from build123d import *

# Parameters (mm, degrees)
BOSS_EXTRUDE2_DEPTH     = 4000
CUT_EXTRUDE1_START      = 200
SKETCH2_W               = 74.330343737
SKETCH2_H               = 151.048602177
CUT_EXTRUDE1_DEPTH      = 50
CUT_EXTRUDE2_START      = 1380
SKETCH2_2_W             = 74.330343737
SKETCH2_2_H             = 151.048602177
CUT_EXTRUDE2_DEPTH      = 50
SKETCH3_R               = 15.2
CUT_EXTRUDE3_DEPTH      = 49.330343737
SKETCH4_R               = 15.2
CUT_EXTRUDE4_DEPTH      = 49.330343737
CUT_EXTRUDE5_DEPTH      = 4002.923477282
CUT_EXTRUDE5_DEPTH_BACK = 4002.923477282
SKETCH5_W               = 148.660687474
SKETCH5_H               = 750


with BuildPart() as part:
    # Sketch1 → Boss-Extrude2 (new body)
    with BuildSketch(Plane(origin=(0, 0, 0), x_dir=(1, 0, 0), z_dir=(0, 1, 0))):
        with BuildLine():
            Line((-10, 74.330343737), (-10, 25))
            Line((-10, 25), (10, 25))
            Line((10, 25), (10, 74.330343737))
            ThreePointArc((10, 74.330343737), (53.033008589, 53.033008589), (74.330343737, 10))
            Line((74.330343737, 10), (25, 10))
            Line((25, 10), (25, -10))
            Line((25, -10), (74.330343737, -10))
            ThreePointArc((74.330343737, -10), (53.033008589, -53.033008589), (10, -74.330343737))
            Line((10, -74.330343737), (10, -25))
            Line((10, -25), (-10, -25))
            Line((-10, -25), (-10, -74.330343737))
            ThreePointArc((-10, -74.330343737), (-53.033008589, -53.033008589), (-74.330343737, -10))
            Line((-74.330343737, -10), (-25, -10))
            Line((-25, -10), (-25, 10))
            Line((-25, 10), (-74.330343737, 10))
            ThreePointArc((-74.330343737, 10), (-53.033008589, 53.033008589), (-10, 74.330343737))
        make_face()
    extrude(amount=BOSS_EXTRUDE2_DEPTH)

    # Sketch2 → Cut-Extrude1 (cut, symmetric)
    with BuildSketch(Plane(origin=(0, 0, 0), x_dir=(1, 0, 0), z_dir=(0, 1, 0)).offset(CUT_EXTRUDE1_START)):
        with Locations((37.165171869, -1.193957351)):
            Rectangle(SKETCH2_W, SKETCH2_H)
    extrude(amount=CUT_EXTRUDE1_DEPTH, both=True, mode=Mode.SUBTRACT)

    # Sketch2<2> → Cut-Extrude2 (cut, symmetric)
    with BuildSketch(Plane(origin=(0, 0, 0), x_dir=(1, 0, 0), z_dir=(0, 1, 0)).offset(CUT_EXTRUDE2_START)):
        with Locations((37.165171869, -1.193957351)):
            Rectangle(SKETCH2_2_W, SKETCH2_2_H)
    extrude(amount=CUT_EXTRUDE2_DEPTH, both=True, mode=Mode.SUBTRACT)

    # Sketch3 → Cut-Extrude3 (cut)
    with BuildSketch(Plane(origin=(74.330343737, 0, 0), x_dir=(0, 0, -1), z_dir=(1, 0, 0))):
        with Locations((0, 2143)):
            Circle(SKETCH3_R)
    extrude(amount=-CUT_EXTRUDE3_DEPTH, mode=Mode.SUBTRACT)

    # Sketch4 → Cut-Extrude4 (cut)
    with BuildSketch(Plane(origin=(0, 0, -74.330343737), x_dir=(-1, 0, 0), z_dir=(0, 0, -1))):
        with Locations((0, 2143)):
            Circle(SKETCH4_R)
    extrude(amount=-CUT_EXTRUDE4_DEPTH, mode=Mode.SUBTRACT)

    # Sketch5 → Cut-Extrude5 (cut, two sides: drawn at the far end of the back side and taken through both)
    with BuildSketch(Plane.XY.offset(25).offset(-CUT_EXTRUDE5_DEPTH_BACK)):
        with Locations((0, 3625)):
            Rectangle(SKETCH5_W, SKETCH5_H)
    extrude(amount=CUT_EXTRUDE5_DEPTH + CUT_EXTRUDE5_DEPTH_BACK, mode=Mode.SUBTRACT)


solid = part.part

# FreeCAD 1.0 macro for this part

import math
import FreeCAD as App
import Part
import Sketcher

V = App.Vector
Q = App.Units.Quantity

doc = App.newDocument("Part")
body = doc.addObject("PartDesign::Body", "Body")

sketch1 = body.newObject("Sketcher::SketchObject", "Sketch")
sketch1.AttachmentSupport = (doc.getObject("XZ_Plane"), [""])
sketch1.MapMode = "FlatFace"
sketch1.addGeometry([
    Part.LineSegment(V(-10, -25, 0), V(-10, -74, 0)),
    Part.ArcOfCircle(Part.Circle(V(0, 0, 0), V(0, 0, 1), 75), math.radians(-172), math.radians(-98)),
    Part.LineSegment(V(-74, -10, 0), V(-25, -10, 0)),
    Part.LineSegment(V(-25, -10, 0), V(-25, 10, 0)),
    Part.LineSegment(V(-25, 10, 0), V(-74, 10, 0)),
    Part.ArcOfCircle(Part.Circle(V(0, 0, 0), V(0, 0, 1), 75), math.radians(98), math.radians(172)),
    Part.LineSegment(V(-10, 74, 0), V(-10, 25, 0)),
    Part.LineSegment(V(-10, 25, 0), V(10, 25, 0)),
    Part.LineSegment(V(10, 25, 0), V(10, 74, 0)),
    Part.ArcOfCircle(Part.Circle(V(0, 0, 0), V(0, 0, 1), 75), math.radians(8), math.radians(82)),
    Part.LineSegment(V(74, 10, 0), V(25, 10, 0)),
    Part.LineSegment(V(25, 10, 0), V(25, -10, 0)),
    Part.LineSegment(V(25, -10, 0), V(74, -10, 0)),
    Part.ArcOfCircle(Part.Circle(V(0, 0, 0), V(0, 0, 1), 75), math.radians(-82), math.radians(-8)),
    Part.LineSegment(V(10, -74, 0), V(10, -25, 0)),
    Part.LineSegment(V(10, -25, 0), V(-10, -25, 0)),
], False)
sketch1.addConstraint([
    Sketcher.Constraint("Coincident", 0, 2, 1, 2),
    Sketcher.Constraint("Coincident", 1, 1, 2, 1),
    Sketcher.Constraint("Coincident", 2, 2, 3, 1),
    Sketcher.Constraint("Coincident", 3, 2, 4, 1),
    Sketcher.Constraint("Coincident", 4, 2, 5, 2),
    Sketcher.Constraint("Coincident", 5, 1, 6, 1),
    Sketcher.Constraint("Coincident", 6, 2, 7, 1),
    Sketcher.Constraint("Coincident", 7, 2, 8, 1),
    Sketcher.Constraint("Coincident", 8, 2, 9, 2),
    Sketcher.Constraint("Coincident", 9, 1, 10, 1),
    Sketcher.Constraint("Coincident", 10, 2, 11, 1),
    Sketcher.Constraint("Coincident", 11, 2, 12, 1),
    Sketcher.Constraint("Coincident", 12, 2, 13, 2),
    Sketcher.Constraint("Coincident", 13, 1, 14, 1),
    Sketcher.Constraint("Coincident", 14, 2, 15, 1),
    Sketcher.Constraint("Coincident", 15, 2, 0, 1),
    Sketcher.Constraint("Vertical", 0),
    Sketcher.Constraint("Horizontal", 2),
    Sketcher.Constraint("Vertical", 3),
    Sketcher.Constraint("Horizontal", 4),
    Sketcher.Constraint("Vertical", 6),
    Sketcher.Constraint("Horizontal", 7),
    Sketcher.Constraint("Vertical", 8),
    Sketcher.Constraint("Horizontal", 10),
    Sketcher.Constraint("Vertical", 11),
    Sketcher.Constraint("Horizontal", 12),
    Sketcher.Constraint("Vertical", 14),
    Sketcher.Constraint("Horizontal", 15),
    Sketcher.Constraint("Coincident", 1, 3, -1, 1),
    Sketcher.Constraint("Coincident", 5, 3, -1, 1),
    Sketcher.Constraint("Coincident", 9, 3, -1, 1),
    Sketcher.Constraint("Coincident", 13, 3, -1, 1),
    Sketcher.Constraint("Equal", 1, 5),
    Sketcher.Constraint("Equal", 5, 9),
    Sketcher.Constraint("Equal", 9, 13),
    Sketcher.Constraint("Symmetric", 2, 2, 10, 2, -1, 1),
    Sketcher.Constraint("Symmetric", 6, 2, 14, 2, -1, 1),
    Sketcher.Constraint("Horizontal", 5, 1, 8, 2),
    Sketcher.Constraint("Horizontal", 4, 2, 9, 1),
    Sketcher.Constraint("Horizontal", 2, 2, 11, 2),
    Sketcher.Constraint("Horizontal", 0, 2, 13, 1),
    Sketcher.Constraint("Equal", 12, 0),
    Sketcher.Constraint("Equal", 15, 3),
    Sketcher.Constraint("Radius", 1, Q("75 mm")),
    Sketcher.Constraint("DistanceX", 7, 1, 7, 2, Q("20 mm")),
    Sketcher.Constraint("DistanceX", 2, 2, -1, 1, Q("25 mm")),
])
pad1 = body.newObject("PartDesign::Pad", "Pad")
pad1.Profile = sketch1
pad1.Length = 4000
pad1.Reversed = True

sketch2 = body.newObject("Sketcher::SketchObject", "Sketch001")
sketch2.AttachmentSupport = (doc.getObject("XZ_Plane"), [""])
sketch2.MapMode = "FlatFace"
sketch2.AttachmentOffset = App.Placement(V(0, 0, -200), App.Rotation())
sketch2.addGeometry([
    Part.LineSegment(V(0, -74, 0), V(0, 77, 0)),
    Part.LineSegment(V(0, 77, 0), V(74, 77, 0)),
    Part.LineSegment(V(74, 77, 0), V(74, -74, 0)),
    Part.LineSegment(V(74, -74, 0), V(0, -74, 0)),
], False)
sketch2.addConstraint([
    Sketcher.Constraint("Coincident", 0, 2, 1, 1),
    Sketcher.Constraint("Coincident", 1, 2, 2, 1),
    Sketcher.Constraint("Coincident", 2, 2, 3, 1),
    Sketcher.Constraint("Coincident", 3, 2, 0, 1),
    Sketcher.Constraint("Vertical", 0),
    Sketcher.Constraint("Horizontal", 1),
    Sketcher.Constraint("Vertical", 2),
    Sketcher.Constraint("Horizontal", 3),
    Sketcher.Constraint("PointOnObject", 0, 2, -2),
    Sketcher.Constraint("DistanceX", 1, 1, 1, 2, Q("74.330344 mm")),
    Sketcher.Constraint("DistanceY", 0, 1, 0, 2, Q("151.048602 mm")),
    Sketcher.Constraint("DistanceY", -1, 1, 0, 2, Q("76.718258 mm")),
])
pocket1 = body.newObject("PartDesign::Pocket", "Pocket")
pocket1.Profile = sketch2
pocket1.Length = 100
pocket1.Midplane = True

sketch3 = body.newObject("Sketcher::SketchObject", "Sketch002")
sketch3.AttachmentSupport = (doc.getObject("XZ_Plane"), [""])
sketch3.MapMode = "FlatFace"
sketch3.AttachmentOffset = App.Placement(V(0, 0, -1380), App.Rotation())
sketch3.addGeometry([
    Part.LineSegment(V(0, -74, 0), V(0, 77, 0)),
    Part.LineSegment(V(0, 77, 0), V(74, 77, 0)),
    Part.LineSegment(V(74, 77, 0), V(74, -74, 0)),
    Part.LineSegment(V(74, -74, 0), V(0, -74, 0)),
], False)
sketch3.addConstraint([
    Sketcher.Constraint("Coincident", 0, 2, 1, 1),
    Sketcher.Constraint("Coincident", 1, 2, 2, 1),
    Sketcher.Constraint("Coincident", 2, 2, 3, 1),
    Sketcher.Constraint("Coincident", 3, 2, 0, 1),
    Sketcher.Constraint("Vertical", 0),
    Sketcher.Constraint("Horizontal", 1),
    Sketcher.Constraint("Vertical", 2),
    Sketcher.Constraint("Horizontal", 3),
    Sketcher.Constraint("PointOnObject", 0, 2, -2),
    Sketcher.Constraint("DistanceX", 1, 1, 1, 2, Q("74.330344 mm")),
    Sketcher.Constraint("DistanceY", 0, 1, 0, 2, Q("151.048602 mm")),
    Sketcher.Constraint("DistanceY", -1, 1, 0, 2, Q("76.718258 mm")),
])
pocket2 = body.newObject("PartDesign::Pocket", "Pocket001")
pocket2.Profile = sketch3
pocket2.Length = 100
pocket2.Midplane = True

sketch4 = body.newObject("Sketcher::SketchObject", "Sketch003")
sketch4.AttachmentSupport = (doc.getObject("YZ_Plane"), [""])
sketch4.MapMode = "FlatFace"
sketch4.AttachmentOffset = App.Placement(V(0, 0, 74.330344), App.Rotation())
sketch4.addGeometry(Part.Circle(V(2143, 0, 0), V(0, 0, 1), 15), False)
sketch4.addConstraint([
    Sketcher.Constraint("PointOnObject", 0, 3, -1),
    Sketcher.Constraint("Diameter", 0, Q("30.4 mm")),
    Sketcher.Constraint("DistanceX", -1, 1, 0, 3, Q("2143 mm")),
])
pocket3 = body.newObject("PartDesign::Pocket", "Pocket002")
pocket3.Profile = sketch4
pocket3.Length = 49.330344

sketch5 = body.newObject("Sketcher::SketchObject", "Sketch004")
sketch5.AttachmentSupport = (doc.getObject("XY_Plane"), [""])
sketch5.MapMode = "FlatFace"
sketch5.AttachmentOffset = App.Placement(V(0, 0, -74.330344), App.Rotation())
sketch5.addGeometry(Part.Circle(V(0, 2143, 0), V(0, 0, 1), 15), False)
sketch5.addConstraint([
    Sketcher.Constraint("PointOnObject", 0, 3, -2),
    Sketcher.Constraint("Diameter", 0, Q("30.4 mm")),
    Sketcher.Constraint("DistanceY", -1, 1, 0, 3, Q("2143 mm")),
])
pocket4 = body.newObject("PartDesign::Pocket", "Pocket003")
pocket4.Profile = sketch5
pocket4.Length = 49.330344
pocket4.Reversed = True

sketch6 = body.newObject("Sketcher::SketchObject", "Sketch005")
sketch6.AttachmentSupport = (doc.getObject("XY_Plane"), [""])
sketch6.MapMode = "FlatFace"
sketch6.AttachmentOffset = App.Placement(V(0, 0, 25), App.Rotation())
sketch6.addGeometry([
    Part.LineSegment(V(-74, 4000, 0), V(-74, 3250, 0)),
    Part.LineSegment(V(-74, 3250, 0), V(74, 3250, 0)),
    Part.LineSegment(V(74, 3250, 0), V(74, 4000, 0)),
    Part.LineSegment(V(74, 4000, 0), V(-74, 4000, 0)),
], False)
sketch6.addConstraint([
    Sketcher.Constraint("Coincident", 0, 2, 1, 1),
    Sketcher.Constraint("Coincident", 1, 2, 2, 1),
    Sketcher.Constraint("Coincident", 2, 2, 3, 1),
    Sketcher.Constraint("Coincident", 3, 2, 0, 1),
    Sketcher.Constraint("Vertical", 0),
    Sketcher.Constraint("Horizontal", 1),
    Sketcher.Constraint("Vertical", 2),
    Sketcher.Constraint("Horizontal", 3),
    Sketcher.Constraint("DistanceY", 0, 2, 0, 1, Q("750 mm")),
    Sketcher.Constraint("DistanceY", -1, 1, 0, 2, Q("3250 mm")),
    Sketcher.Constraint("DistanceX", 1, 1, 1, 2, Q("148.660687 mm")),
    Sketcher.Constraint("DistanceX", 0, 2, -1, 1, Q("74.330344 mm")),
])
pocket5 = body.newObject("PartDesign::Pocket", "Pocket004")
pocket5.Profile = sketch6
pocket5.Type = "ThroughAll"
pocket5.Midplane = True

doc.recompute()
